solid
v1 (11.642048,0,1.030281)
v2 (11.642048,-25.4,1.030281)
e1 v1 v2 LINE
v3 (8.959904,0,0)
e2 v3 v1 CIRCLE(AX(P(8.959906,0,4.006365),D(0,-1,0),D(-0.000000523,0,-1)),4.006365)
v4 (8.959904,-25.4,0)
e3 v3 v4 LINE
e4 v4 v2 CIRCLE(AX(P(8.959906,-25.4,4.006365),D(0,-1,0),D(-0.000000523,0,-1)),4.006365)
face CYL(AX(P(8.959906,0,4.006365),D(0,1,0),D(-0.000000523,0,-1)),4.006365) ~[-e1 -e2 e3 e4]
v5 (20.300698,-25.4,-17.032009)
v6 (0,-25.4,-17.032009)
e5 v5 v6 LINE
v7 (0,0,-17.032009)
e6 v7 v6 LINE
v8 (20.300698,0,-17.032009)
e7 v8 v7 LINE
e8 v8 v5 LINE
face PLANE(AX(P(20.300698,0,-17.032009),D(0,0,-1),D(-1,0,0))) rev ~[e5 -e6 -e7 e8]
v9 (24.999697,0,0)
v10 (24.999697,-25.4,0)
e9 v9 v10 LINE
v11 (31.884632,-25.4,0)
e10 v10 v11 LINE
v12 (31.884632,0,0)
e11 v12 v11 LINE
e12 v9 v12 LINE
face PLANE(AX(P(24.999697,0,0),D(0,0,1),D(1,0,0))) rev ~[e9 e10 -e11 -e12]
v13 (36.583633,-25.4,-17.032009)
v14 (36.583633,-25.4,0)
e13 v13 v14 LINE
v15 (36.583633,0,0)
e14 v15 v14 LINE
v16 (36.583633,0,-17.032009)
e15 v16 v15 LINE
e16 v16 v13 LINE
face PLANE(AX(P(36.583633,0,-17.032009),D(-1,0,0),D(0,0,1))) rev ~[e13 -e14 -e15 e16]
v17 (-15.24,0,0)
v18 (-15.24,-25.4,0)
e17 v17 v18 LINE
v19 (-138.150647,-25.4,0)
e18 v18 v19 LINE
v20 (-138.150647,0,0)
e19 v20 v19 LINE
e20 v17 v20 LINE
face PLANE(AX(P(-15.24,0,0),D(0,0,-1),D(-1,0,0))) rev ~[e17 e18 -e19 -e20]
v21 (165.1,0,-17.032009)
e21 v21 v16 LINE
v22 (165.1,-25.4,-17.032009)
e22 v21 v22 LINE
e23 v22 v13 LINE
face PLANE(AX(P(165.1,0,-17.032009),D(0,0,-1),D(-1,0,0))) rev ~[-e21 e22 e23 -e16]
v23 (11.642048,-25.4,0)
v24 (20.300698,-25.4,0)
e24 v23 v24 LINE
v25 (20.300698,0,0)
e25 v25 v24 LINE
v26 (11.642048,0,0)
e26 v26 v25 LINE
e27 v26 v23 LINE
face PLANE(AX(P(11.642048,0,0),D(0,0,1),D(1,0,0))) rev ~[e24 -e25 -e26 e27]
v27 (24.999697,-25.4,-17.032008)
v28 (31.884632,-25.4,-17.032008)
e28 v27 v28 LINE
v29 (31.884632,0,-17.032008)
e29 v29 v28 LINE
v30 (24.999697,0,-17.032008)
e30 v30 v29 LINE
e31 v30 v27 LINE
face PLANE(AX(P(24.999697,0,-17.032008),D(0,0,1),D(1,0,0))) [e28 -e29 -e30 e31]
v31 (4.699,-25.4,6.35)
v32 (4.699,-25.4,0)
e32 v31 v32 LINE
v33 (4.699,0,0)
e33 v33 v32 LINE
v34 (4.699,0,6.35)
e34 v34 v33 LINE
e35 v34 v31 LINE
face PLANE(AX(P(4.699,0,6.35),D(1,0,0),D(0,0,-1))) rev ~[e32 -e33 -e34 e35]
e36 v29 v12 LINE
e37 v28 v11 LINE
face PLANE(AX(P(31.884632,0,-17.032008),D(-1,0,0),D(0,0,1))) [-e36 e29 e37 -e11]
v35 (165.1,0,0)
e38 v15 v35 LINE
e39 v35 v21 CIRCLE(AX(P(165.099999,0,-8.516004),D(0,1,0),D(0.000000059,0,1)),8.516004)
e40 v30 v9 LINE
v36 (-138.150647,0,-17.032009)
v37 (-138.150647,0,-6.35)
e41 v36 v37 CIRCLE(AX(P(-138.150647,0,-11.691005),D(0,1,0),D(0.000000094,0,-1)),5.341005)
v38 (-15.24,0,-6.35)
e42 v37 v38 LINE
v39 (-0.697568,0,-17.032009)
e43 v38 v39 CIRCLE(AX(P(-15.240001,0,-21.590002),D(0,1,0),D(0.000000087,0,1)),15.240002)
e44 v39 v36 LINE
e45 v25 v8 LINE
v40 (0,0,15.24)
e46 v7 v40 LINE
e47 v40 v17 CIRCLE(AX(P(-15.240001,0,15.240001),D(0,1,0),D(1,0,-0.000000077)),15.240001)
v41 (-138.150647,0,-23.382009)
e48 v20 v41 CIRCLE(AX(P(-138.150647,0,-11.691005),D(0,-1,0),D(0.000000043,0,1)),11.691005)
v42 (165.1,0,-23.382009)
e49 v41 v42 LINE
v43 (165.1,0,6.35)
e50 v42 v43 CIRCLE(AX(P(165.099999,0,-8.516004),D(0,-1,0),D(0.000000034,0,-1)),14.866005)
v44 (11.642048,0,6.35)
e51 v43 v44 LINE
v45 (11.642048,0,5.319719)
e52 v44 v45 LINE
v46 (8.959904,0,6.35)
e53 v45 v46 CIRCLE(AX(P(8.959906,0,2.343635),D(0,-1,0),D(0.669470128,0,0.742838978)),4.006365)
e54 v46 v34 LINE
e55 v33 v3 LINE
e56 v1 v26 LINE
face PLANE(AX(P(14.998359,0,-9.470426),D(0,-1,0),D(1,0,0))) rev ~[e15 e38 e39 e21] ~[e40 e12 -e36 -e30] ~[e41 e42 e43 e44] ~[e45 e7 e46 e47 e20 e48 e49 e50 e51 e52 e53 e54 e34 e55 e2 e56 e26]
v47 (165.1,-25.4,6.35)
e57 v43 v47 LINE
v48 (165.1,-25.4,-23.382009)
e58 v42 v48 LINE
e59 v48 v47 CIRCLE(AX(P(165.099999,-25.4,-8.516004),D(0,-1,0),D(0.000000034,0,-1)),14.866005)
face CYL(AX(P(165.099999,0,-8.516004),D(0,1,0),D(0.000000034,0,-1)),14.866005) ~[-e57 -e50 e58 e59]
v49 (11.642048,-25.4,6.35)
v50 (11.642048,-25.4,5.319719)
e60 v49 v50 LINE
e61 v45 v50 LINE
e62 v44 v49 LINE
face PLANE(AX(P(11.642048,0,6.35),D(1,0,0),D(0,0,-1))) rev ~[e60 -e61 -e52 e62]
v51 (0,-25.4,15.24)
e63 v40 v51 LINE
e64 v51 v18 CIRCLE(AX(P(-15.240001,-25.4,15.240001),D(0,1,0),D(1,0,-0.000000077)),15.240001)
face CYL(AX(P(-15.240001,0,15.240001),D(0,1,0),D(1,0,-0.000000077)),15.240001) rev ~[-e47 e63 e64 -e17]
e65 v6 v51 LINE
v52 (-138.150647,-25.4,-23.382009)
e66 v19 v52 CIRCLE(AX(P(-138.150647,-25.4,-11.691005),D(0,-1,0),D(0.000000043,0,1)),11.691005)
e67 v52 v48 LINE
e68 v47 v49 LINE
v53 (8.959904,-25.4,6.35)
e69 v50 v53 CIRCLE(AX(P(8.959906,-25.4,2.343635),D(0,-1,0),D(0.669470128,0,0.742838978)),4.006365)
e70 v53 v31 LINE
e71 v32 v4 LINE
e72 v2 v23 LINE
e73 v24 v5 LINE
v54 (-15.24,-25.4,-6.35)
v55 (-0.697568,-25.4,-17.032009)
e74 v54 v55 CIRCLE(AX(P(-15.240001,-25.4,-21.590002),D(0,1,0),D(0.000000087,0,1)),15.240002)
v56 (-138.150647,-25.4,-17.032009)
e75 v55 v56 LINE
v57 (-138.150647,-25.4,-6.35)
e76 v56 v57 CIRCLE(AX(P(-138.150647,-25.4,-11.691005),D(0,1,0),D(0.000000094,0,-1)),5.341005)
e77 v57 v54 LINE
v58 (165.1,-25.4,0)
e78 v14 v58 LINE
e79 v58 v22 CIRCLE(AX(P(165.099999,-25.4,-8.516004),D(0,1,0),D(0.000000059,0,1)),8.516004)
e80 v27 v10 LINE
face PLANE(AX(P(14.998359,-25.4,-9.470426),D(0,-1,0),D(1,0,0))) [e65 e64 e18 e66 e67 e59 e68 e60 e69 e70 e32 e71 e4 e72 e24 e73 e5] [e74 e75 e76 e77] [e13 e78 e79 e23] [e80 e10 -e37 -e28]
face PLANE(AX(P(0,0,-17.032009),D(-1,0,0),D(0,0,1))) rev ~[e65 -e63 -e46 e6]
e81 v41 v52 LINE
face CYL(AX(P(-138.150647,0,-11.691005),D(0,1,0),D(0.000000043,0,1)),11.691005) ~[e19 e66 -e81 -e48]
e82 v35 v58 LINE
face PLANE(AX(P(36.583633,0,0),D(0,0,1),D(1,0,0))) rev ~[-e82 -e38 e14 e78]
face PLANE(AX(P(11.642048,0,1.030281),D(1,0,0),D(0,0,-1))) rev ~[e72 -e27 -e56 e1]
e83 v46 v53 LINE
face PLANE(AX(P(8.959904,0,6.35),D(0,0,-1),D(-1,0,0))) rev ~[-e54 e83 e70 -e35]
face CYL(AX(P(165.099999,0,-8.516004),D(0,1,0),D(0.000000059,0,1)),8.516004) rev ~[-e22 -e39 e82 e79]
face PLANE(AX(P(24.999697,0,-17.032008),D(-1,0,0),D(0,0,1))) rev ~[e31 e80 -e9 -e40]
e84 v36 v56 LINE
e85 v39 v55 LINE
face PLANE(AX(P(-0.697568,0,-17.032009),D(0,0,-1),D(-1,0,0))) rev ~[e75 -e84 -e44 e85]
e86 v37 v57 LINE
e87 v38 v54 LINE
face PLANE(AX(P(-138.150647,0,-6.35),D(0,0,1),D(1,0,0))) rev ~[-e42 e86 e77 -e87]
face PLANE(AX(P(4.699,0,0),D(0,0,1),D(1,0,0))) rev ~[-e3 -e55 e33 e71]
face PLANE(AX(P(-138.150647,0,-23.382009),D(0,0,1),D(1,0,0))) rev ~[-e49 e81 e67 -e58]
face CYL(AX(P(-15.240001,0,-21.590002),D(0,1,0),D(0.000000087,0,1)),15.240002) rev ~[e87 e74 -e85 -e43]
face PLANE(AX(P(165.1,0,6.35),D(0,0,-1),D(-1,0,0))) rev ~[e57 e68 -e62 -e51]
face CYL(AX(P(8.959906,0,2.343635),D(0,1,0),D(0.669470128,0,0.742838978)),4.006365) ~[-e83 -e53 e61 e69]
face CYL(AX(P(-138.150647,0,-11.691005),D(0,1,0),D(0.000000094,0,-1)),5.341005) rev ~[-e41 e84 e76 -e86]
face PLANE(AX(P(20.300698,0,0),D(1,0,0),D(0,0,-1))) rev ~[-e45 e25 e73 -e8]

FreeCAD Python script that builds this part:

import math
import FreeCAD as App
import Part
import Sketcher
Q = App.Units.Quantity


def add_polygon(sketch, points):
    """Adds a closed chain of lines whose ends are joined by coincident constraints."""
    first, n = sketch.GeometryCount, len(points)
    for a, b in zip(points, points[1:] + points[:1]):
        sketch.addGeometry(Part.LineSegment(App.Vector(*a, 0), App.Vector(*b, 0)), False)
    for i in range(n):
        sketch.addConstraint(Sketcher.Constraint("Coincident", first + i, 2, first + (i + 1) % n, 1))

doc = App.newDocument("Part")
body = doc.addObject("PartDesign::Body", "Body")

sketch1 = doc.addObject("Sketcher::SketchObject", "Sketch")
body.addObject(sketch1)
sketch1.AttachmentSupport = (doc.XZ_Plane, [""])
sketch1.MapMode = "FlatFace"
sketch1.addGeometry(Part.ArcOfCircle(Part.Circle(App.Vector(-15.240001, 15.240001, 0), App.Vector(0, 0, 1), 15.240001), math.radians(-89.999996), math.radians(-0.000004)), False)
sketch1.addGeometry(Part.LineSegment(App.Vector(-15.24, 0, 0), App.Vector(-138.150647, 0, 0)), False)
sketch1.addGeometry(Part.ArcOfCircle(Part.Circle(App.Vector(-138.150647, -11.691005, 0), App.Vector(0, 0, 1), 11.691005), math.radians(89.999998), math.radians(270.000002)), False)
sketch1.addGeometry(Part.LineSegment(App.Vector(-138.150647, -23.382009, 0), App.Vector(165.1, -23.382009, 0)), False)
sketch1.addGeometry(Part.ArcOfCircle(Part.Circle(App.Vector(165.099999, -8.516004, 0), App.Vector(0, 0, 1), 14.866005), math.radians(-89.999998), math.radians(89.999998)), False)
sketch1.addGeometry(Part.LineSegment(App.Vector(165.1, 6.35, 0), App.Vector(11.642048, 6.35, 0)), False)
sketch1.addGeometry(Part.LineSegment(App.Vector(11.642048, 6.35, 0), App.Vector(11.642048, 5.319719, 0)), False)
sketch1.addGeometry(Part.ArcOfCircle(Part.Circle(App.Vector(8.959906, 2.343635, 0), App.Vector(0, 0, 1), 4.006365), math.radians(47.973818), math.radians(90.00003)), False)
sketch1.addGeometry(Part.LineSegment(App.Vector(8.959904, 6.35, 0), App.Vector(4.699, 6.35, 0)), False)
sketch1.addGeometry(Part.LineSegment(App.Vector(4.699, 6.35, 0), App.Vector(4.699, 0, 0)), False)
sketch1.addGeometry(Part.LineSegment(App.Vector(4.699, 0, 0), App.Vector(8.959904, 0, 0)), False)
sketch1.addGeometry(Part.ArcOfCircle(Part.Circle(App.Vector(8.959906, 4.006365, 0), App.Vector(0, 0, 1), 4.006365), math.radians(-90.00003), math.radians(-47.973818)), False)
sketch1.addGeometry(Part.LineSegment(App.Vector(11.642048, 1.030281, 0), App.Vector(11.642048, 0, 0)), False)
sketch1.addGeometry(Part.LineSegment(App.Vector(11.642048, 0, 0), App.Vector(20.300698, 0, 0)), False)
sketch1.addGeometry(Part.LineSegment(App.Vector(20.300698, 0, 0), App.Vector(20.300698, -17.032009, 0)), False)
sketch1.addGeometry(Part.LineSegment(App.Vector(20.300698, -17.032009, 0), App.Vector(0, -17.032009, 0)), False)
sketch1.addGeometry(Part.LineSegment(App.Vector(0, -17.032009, 0), App.Vector(0, 15.24, 0)), False)
sketch1.addGeometry(Part.LineSegment(App.Vector(-138.150647, -6.35, 0), App.Vector(-15.24, -6.35, 0)), False)
sketch1.addGeometry(Part.ArcOfCircle(Part.Circle(App.Vector(-15.240001, -21.590002, 0), App.Vector(0, 0, 1), 15.240002), math.radians(17.402407), math.radians(89.999995)), False)
sketch1.addGeometry(Part.LineSegment(App.Vector(-0.697568, -17.032009, 0), App.Vector(-138.150647, -17.032009, 0)), False)
sketch1.addGeometry(Part.ArcOfCircle(Part.Circle(App.Vector(-138.150647, -11.691005, 0), App.Vector(0, 0, 1), 5.341005), math.radians(89.999995), math.radians(270.000005)), False)
sketch1.addGeometry(Part.LineSegment(App.Vector(36.583633, 0, 0), App.Vector(165.1, 0, 0)), False)
sketch1.addGeometry(Part.ArcOfCircle(Part.Circle(App.Vector(165.099999, -8.516004, 0), App.Vector(0, 0, 1), 8.516004), math.radians(-89.999997), math.radians(89.999997)), False)
sketch1.addGeometry(Part.LineSegment(App.Vector(165.1, -17.032009, 0), App.Vector(36.583633, -17.032009, 0)), False)
sketch1.addGeometry(Part.LineSegment(App.Vector(36.583633, -17.032009, 0), App.Vector(36.583633, 0, 0)), False)
add_polygon(sketch1, [(31.884632, -17.032008), (24.999697, -17.032008), (24.999697, 0), (31.884632, 0)])
sketch1.addConstraint(Sketcher.Constraint("Tangent", 0, 1, 1, 1))
sketch1.addConstraint(Sketcher.Constraint("Tangent", 1, 2, 2, 1))
sketch1.addConstraint(Sketcher.Constraint("Tangent", 2, 2, 3, 1))
sketch1.addConstraint(Sketcher.Constraint("Tangent", 3, 2, 4, 1))
sketch1.addConstraint(Sketcher.Constraint("Tangent", 4, 2, 5, 1))
sketch1.addConstraint(Sketcher.Constraint("Coincident", 5, 2, 6, 1))
sketch1.addConstraint(Sketcher.Constraint("Coincident", 6, 2, 7, 1))
sketch1.addConstraint(Sketcher.Constraint("Tangent", 7, 2, 8, 1))
sketch1.addConstraint(Sketcher.Constraint("Coincident", 8, 2, 9, 1))
sketch1.addConstraint(Sketcher.Constraint("Coincident", 9, 2, 10, 1))
sketch1.addConstraint(Sketcher.Constraint("Tangent", 10, 2, 11, 1))
sketch1.addConstraint(Sketcher.Constraint("Coincident", 11, 2, 12, 1))
sketch1.addConstraint(Sketcher.Constraint("Coincident", 12, 2, 13, 1))
sketch1.addConstraint(Sketcher.Constraint("Coincident", 13, 2, 14, 1))
sketch1.addConstraint(Sketcher.Constraint("Coincident", 14, 2, 15, 1))
sketch1.addConstraint(Sketcher.Constraint("Coincident", 15, 2, 16, 1))
sketch1.addConstraint(Sketcher.Constraint("Tangent", 16, 2, 0, 2))
sketch1.addConstraint(Sketcher.Constraint("Tangent", 17, 2, 18, 2))
sketch1.addConstraint(Sketcher.Constraint("Coincident", 18, 1, 19, 1))
sketch1.addConstraint(Sketcher.Constraint("Tangent", 19, 2, 20, 2))
sketch1.addConstraint(Sketcher.Constraint("Tangent", 20, 1, 17, 1))
sketch1.addConstraint(Sketcher.Constraint("Tangent", 21, 2, 22, 2))
sketch1.addConstraint(Sketcher.Constraint("Tangent", 22, 1, 23, 1))
sketch1.addConstraint(Sketcher.Constraint("Coincident", 23, 2, 24, 1))
sketch1.addConstraint(Sketcher.Constraint("Coincident", 24, 2, 21, 1))
sketch1.addConstraint(Sketcher.Constraint("Horizontal", 1))
sketch1.addConstraint(Sketcher.Constraint("Horizontal", 3))
sketch1.addConstraint(Sketcher.Constraint("Horizontal", 5))
sketch1.addConstraint(Sketcher.Constraint("Vertical", 6))
sketch1.addConstraint(Sketcher.Constraint("Horizontal", 8))
sketch1.addConstraint(Sketcher.Constraint("Vertical", 9))
sketch1.addConstraint(Sketcher.Constraint("Horizontal", 10))
sketch1.addConstraint(Sketcher.Constraint("Vertical", 12))
sketch1.addConstraint(Sketcher.Constraint("Horizontal", 13))
sketch1.addConstraint(Sketcher.Constraint("Vertical", 14))
sketch1.addConstraint(Sketcher.Constraint("Horizontal", 15))
sketch1.addConstraint(Sketcher.Constraint("Vertical", 16))
sketch1.addConstraint(Sketcher.Constraint("Horizontal", 17))
sketch1.addConstraint(Sketcher.Constraint("Horizontal", 19))
sketch1.addConstraint(Sketcher.Constraint("Horizontal", 21))
sketch1.addConstraint(Sketcher.Constraint("Horizontal", 23))
sketch1.addConstraint(Sketcher.Constraint("Vertical", 24))
sketch1.addConstraint(Sketcher.Constraint("Horizontal", 25))
sketch1.addConstraint(Sketcher.Constraint("Vertical", 26))
sketch1.addConstraint(Sketcher.Constraint("Horizontal", 27))
sketch1.addConstraint(Sketcher.Constraint("Vertical", 28))
sketch1.addConstraint(Sketcher.Constraint("Coincident", 20, 3, 2, 3))
sketch1.addConstraint(Sketcher.Constraint("Coincident", 22, 3, 4, 3))
sketch1.addConstraint(Sketcher.Constraint("Equal", 7, 11))
sketch1.addConstraint(Sketcher.Constraint("Equal", 0, 18))
sketch1.addConstraint(Sketcher.Constraint("PointOnObject", 0, 1, -1))
sketch1.addConstraint(Sketcher.Constraint("PointOnObject", 9, 2, -1))
sketch1.addConstraint(Sketcher.Constraint("PointOnObject", 12, 2, -1))
sketch1.addConstraint(Sketcher.Constraint("PointOnObject", 15, 2, -2))
sketch1.addConstraint(Sketcher.Constraint("PointOnObject", 21, 2, -1))
sketch1.addConstraint(Sketcher.Constraint("PointOnObject", 26, 2, -1))
sketch1.addConstraint(Sketcher.Constraint("Horizontal", 5, 2, 7, 2))
sketch1.addConstraint(Sketcher.Constraint("Horizontal", 15, 2, 18, 1))
sketch1.addConstraint(Sketcher.Constraint("Horizontal", 19, 2, 22, 1))
sketch1.addConstraint(Sketcher.Constraint("Horizontal", 23, 2, 25, 2))
sketch1.addConstraint(Sketcher.Constraint("Vertical", 7, 3, 11, 3))
sketch1.addConstraint(Sketcher.Constraint("Vertical", 0, 3, 18, 3))
sketch1.addConstraint(Sketcher.Constraint("Vertical", 6, 2, 11, 2))
sketch1.addConstraint(Sketcher.Constraint("Radius", 0, Q("0.6 in")))
sketch1.addConstraint(Sketcher.Constraint("DistanceY", 9, 2, 9, 1, Q("0.25 in")))
sketch1.addConstraint(Sketcher.Constraint("DistanceX", -1, 1, 4, 3, Q("6.5 in")))
sketch1.addConstraint(Sketcher.Constraint("DistanceX", -1, 1, 8, 2, Q("0.185 in")))
sketch1.addConstraint(Sketcher.Constraint("DistanceX", 14, 2, 25, 2, Q("0.185 in")))
sketch1.addConstraint(Sketcher.Constraint("DistanceX", 27, 2, 24, 2, Q("0.185 in")))
sketch1.addConstraint(Sketcher.Constraint("DistanceX", 15, 2, 15, 1, 20.300698))
sketch1.addConstraint(Sketcher.Constraint("Radius", 2, 11.691005))
sketch1.addConstraint(Sketcher.Constraint("Radius", 7, 4.006365))
sketch1.addConstraint(Sketcher.Constraint("DistanceX", 5, 2, 5, 1, 153.457952))
sketch1.addConstraint(Sketcher.Constraint("DistanceX", 19, 2, 19, 1, 137.453079))
sketch1.addConstraint(Sketcher.Constraint("DistanceY", 6, 2, 6, 1, 1.030281))
sketch1.addConstraint(Sketcher.Constraint("DistanceX", 21, 1, 21, 2, 128.516367))
pad1 = doc.addObject("PartDesign::Pad", "Pad")
body.addObject(pad1)
pad1.Profile = sketch1
pad1.Length = Q("1 in")

doc.recompute()
